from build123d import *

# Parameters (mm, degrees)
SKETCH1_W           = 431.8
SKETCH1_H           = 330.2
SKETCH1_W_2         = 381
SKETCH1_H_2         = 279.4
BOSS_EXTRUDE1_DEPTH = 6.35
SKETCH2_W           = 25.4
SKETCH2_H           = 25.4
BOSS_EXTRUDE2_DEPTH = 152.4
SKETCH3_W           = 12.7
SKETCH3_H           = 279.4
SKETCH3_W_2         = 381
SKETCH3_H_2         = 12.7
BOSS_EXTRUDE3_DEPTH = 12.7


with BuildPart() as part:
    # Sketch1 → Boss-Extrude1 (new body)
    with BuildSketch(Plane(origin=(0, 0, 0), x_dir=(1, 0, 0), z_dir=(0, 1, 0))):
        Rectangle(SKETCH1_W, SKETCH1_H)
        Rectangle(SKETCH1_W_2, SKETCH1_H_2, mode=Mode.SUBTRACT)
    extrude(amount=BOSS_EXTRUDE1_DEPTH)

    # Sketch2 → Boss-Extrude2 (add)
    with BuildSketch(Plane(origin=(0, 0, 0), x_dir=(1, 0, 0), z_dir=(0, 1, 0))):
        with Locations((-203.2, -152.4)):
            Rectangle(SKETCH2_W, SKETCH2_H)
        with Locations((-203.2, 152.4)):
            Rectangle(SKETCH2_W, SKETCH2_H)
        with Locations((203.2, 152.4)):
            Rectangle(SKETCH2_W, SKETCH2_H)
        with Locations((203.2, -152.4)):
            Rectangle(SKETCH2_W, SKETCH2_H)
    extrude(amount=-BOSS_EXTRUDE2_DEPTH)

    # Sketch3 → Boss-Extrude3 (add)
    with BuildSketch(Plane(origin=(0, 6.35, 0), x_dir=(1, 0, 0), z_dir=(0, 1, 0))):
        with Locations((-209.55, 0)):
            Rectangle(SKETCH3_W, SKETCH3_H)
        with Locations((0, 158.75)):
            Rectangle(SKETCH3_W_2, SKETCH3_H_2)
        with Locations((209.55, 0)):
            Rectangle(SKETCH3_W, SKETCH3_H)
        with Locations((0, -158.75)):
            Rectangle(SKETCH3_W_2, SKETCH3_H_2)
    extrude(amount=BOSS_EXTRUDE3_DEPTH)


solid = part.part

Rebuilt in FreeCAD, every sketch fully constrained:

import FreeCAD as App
import Part
import Sketcher

V = App.Vector
Q = App.Units.Quantity

doc = App.newDocument("Part")
params = doc.addObject("Spreadsheet::Sheet", "Params")
for row, (alias, value) in enumerate([
    ("sketch1_width", "17 in"),
    ("sketch1_width2", "15 in"),
    ("sketch1_height", "13 in"),
    ("sketch1_height2", "11 in"),
    ("pad1_length", "0.25 in"),
    ("sketch2_width", "1 in"),
    ("pad2_length", "6 in"),
    ("sketch3_width", "15 in"),
    ("sketch3_height", "11 in"),
    ("sketch3_width2", "0.5 in"),
    ("pad3_length", "0.5 in"),
], start=1):
    params.set(f"A{row}", alias)
    params.set(f"B{row}", "=" + value)
    params.setAlias(f"B{row}", alias)

body = doc.addObject("PartDesign::Body", "Body")

sketch1 = body.newObject("Sketcher::SketchObject", "Sketch")
sketch1.AttachmentSupport = (doc.getObject("XZ_Plane"), [""])
sketch1.MapMode = "FlatFace"
sketch1.addGeometry([
    Part.LineSegment(V(-216, -165, 0), V(-216, 165, 0)),
    Part.LineSegment(V(-216, 165, 0), V(216, 165, 0)),
    Part.LineSegment(V(216, 165, 0), V(216, -165, 0)),
    Part.LineSegment(V(216, -165, 0), V(-216, -165, 0)),
    Part.LineSegment(V(190, 140, 0), V(-190, 140, 0)),
    Part.LineSegment(V(-190, 140, 0), V(-190, -140, 0)),
    Part.LineSegment(V(-190, -140, 0), V(190, -140, 0)),
    Part.LineSegment(V(190, -140, 0), V(190, 140, 0)),
], False)
sketch1.addConstraint([
    Sketcher.Constraint("Coincident", 0, 2, 1, 1),
    Sketcher.Constraint("Coincident", 1, 2, 2, 1),
    Sketcher.Constraint("Coincident", 2, 2, 3, 1),
    Sketcher.Constraint("Coincident", 3, 2, 0, 1),
    Sketcher.Constraint("Coincident", 4, 2, 5, 1),
    Sketcher.Constraint("Coincident", 5, 2, 6, 1),
    Sketcher.Constraint("Coincident", 6, 2, 7, 1),
    Sketcher.Constraint("Coincident", 7, 2, 4, 1),
    Sketcher.Constraint("Vertical", 0),
    Sketcher.Constraint("Horizontal", 1),
    Sketcher.Constraint("Vertical", 2),
    Sketcher.Constraint("Horizontal", 3),
    Sketcher.Constraint("Horizontal", 4),
    Sketcher.Constraint("Vertical", 5),
    Sketcher.Constraint("Horizontal", 6),
    Sketcher.Constraint("Vertical", 7),
    Sketcher.Constraint("Symmetric", 0, 2, 2, 2, -1, 1),
    Sketcher.Constraint("Symmetric", 4, 2, 6, 2, -1, 1),
    Sketcher.Constraint("DistanceX", 1, 1, 1, 2, Q("17 in")),
    Sketcher.Constraint("DistanceX", 4, 2, 4, 1, Q("15 in")),
    Sketcher.Constraint("DistanceY", 0, 1, 0, 2, Q("13 in")),
    Sketcher.Constraint("DistanceY", 5, 2, 5, 1, Q("11 in")),
])
sketch1.setExpression("Constraints[18]", "Params.sketch1_width")
sketch1.setExpression("Constraints[19]", "Params.sketch1_width2")
sketch1.setExpression("Constraints[20]", "Params.sketch1_height")
sketch1.setExpression("Constraints[21]", "Params.sketch1_height2")
pad1 = body.newObject("PartDesign::Pad", "Pad")
pad1.Profile = sketch1
pad1.setExpression("Length", "Params.pad1_length")
pad1.Reversed = True

sketch2 = body.newObject("Sketcher::SketchObject", "Sketch001")
sketch2.AttachmentSupport = (doc.getObject("XZ_Plane"), [""])
sketch2.MapMode = "FlatFace"
sketch2.addGeometry([
    Part.LineSegment(V(-216, 140, 0), V(-216, 165, 0)),
    Part.LineSegment(V(-216, 165, 0), V(-190, 165, 0)),
    Part.LineSegment(V(-190, 165, 0), V(-190, 140, 0)),
    Part.LineSegment(V(-190, 140, 0), V(-216, 140, 0)),
    Part.LineSegment(V(-216, -165, 0), V(-216, -140, 0)),
    Part.LineSegment(V(-216, -140, 0), V(-190, -140, 0)),
    Part.LineSegment(V(-190, -140, 0), V(-190, -165, 0)),
    Part.LineSegment(V(-190, -165, 0), V(-216, -165, 0)),
    Part.LineSegment(V(190, -165, 0), V(190, -140, 0)),
    Part.LineSegment(V(190, -140, 0), V(216, -140, 0)),
    Part.LineSegment(V(216, -140, 0), V(216, -165, 0)),
    Part.LineSegment(V(216, -165, 0), V(190, -165, 0)),
    Part.LineSegment(V(190, 140, 0), V(190, 165, 0)),
    Part.LineSegment(V(190, 165, 0), V(216, 165, 0)),
    Part.LineSegment(V(216, 165, 0), V(216, 140, 0)),
    Part.LineSegment(V(216, 140, 0), V(190, 140, 0)),
], False)
sketch2.addConstraint([
    Sketcher.Constraint("Coincident", 0, 2, 1, 1),
    Sketcher.Constraint("Coincident", 1, 2, 2, 1),
    Sketcher.Constraint("Coincident", 2, 2, 3, 1),
    Sketcher.Constraint("Coincident", 3, 2, 0, 1),
    Sketcher.Constraint("Coincident", 4, 2, 5, 1),
    Sketcher.Constraint("Coincident", 5, 2, 6, 1),
    Sketcher.Constraint("Coincident", 6, 2, 7, 1),
    Sketcher.Constraint("Coincident", 7, 2, 4, 1),
    Sketcher.Constraint("Coincident", 8, 2, 9, 1),
    Sketcher.Constraint("Coincident", 9, 2, 10, 1),
    Sketcher.Constraint("Coincident", 10, 2, 11, 1),
    Sketcher.Constraint("Coincident", 11, 2, 8, 1),
    Sketcher.Constraint("Coincident", 12, 2, 13, 1),
    Sketcher.Constraint("Coincident", 13, 2, 14, 1),
    Sketcher.Constraint("Coincident", 14, 2, 15, 1),
    Sketcher.Constraint("Coincident", 15, 2, 12, 1),
    Sketcher.Constraint("Vertical", 0),
    Sketcher.Constraint("Horizontal", 1),
    Sketcher.Constraint("Vertical", 2),
    Sketcher.Constraint("Horizontal", 3),
    Sketcher.Constraint("Vertical", 4),
    Sketcher.Constraint("Horizontal", 5),
    Sketcher.Constraint("Vertical", 6),
    Sketcher.Constraint("Horizontal", 7),
    Sketcher.Constraint("Vertical", 8),
    Sketcher.Constraint("Horizontal", 9),
    Sketcher.Constraint("Vertical", 10),
    Sketcher.Constraint("Horizontal", 11),
    Sketcher.Constraint("Vertical", 12),
    Sketcher.Constraint("Horizontal", 13),
    Sketcher.Constraint("Vertical", 14),
    Sketcher.Constraint("Horizontal", 15),
    Sketcher.Constraint("Symmetric", 2, 2, 8, 2, -1, 1),
    Sketcher.Constraint("Symmetric", 0, 2, 10, 2, -1, 1),
    Sketcher.Constraint("Symmetric", 6, 2, 12, 2, -1, 1),
    Sketcher.Constraint("Symmetric", 4, 2, 14, 2, -1, 1),
    Sketcher.Constraint("Symmetric", 5, 2, 8, 2, -2),
    Sketcher.Constraint("Symmetric", 7, 2, 10, 2, -2),
    Sketcher.Constraint("Equal", 15, 0),
    Sketcher.Constraint("DistanceX", 1, 1, 1, 2, Q("1 in")),
    Sketcher.Constraint("DistanceY", 4, 2, 3, 2, Q("11 in")),
    Sketcher.Constraint("DistanceX", 5, 2, 8, 2, Q("15 in")),
])
sketch2.setExpression("Constraints[39]", "Params.sketch2_width")
pad2 = body.newObject("PartDesign::Pad", "Pad001")
pad2.Profile = sketch2
pad2.setExpression("Length", "Params.pad2_length")

sketch3 = body.newObject("Sketcher::SketchObject", "Sketch002")
sketch3.AttachmentSupport = (doc.getObject("XZ_Plane"), [""])
sketch3.MapMode = "FlatFace"
sketch3.AttachmentOffset = App.Placement(V(0, 0, -0.25 * 25.4), App.Rotation())
sketch3.addGeometry([
    Part.LineSegment(V(-216, -140, 0), V(-216, 140, 0)),
    Part.LineSegment(V(-216, 140, 0), V(-203, 140, 0)),
    Part.LineSegment(V(-203, 140, 0), V(-203, -140, 0)),
    Part.LineSegment(V(-203, -140, 0), V(-216, -140, 0)),
    Part.LineSegment(V(-190, -165, 0), V(-190, -152, 0)),
    Part.LineSegment(V(-190, -152, 0), V(190, -152, 0)),
    Part.LineSegment(V(190, -152, 0), V(190, -165, 0)),
    Part.LineSegment(V(190, -165, 0), V(-190, -165, 0)),
    Part.LineSegment(V(203, -140, 0), V(203, 140, 0)),
    Part.LineSegment(V(203, 140, 0), V(216, 140, 0)),
    Part.LineSegment(V(216, 140, 0), V(216, -140, 0)),
    Part.LineSegment(V(216, -140, 0), V(203, -140, 0)),
    Part.LineSegment(V(-190, 152, 0), V(-190, 165, 0)),
    Part.LineSegment(V(-190, 165, 0), V(190, 165, 0)),
    Part.LineSegment(V(190, 165, 0), V(190, 152, 0)),
    Part.LineSegment(V(190, 152, 0), V(-190, 152, 0)),
], False)
sketch3.addConstraint([
    Sketcher.Constraint("Coincident", 0, 2, 1, 1),
    Sketcher.Constraint("Coincident", 1, 2, 2, 1),
    Sketcher.Constraint("Coincident", 2, 2, 3, 1),
    Sketcher.Constraint("Coincident", 3, 2, 0, 1),
    Sketcher.Constraint("Coincident", 4, 2, 5, 1),
    Sketcher.Constraint("Coincident", 5, 2, 6, 1),
    Sketcher.Constraint("Coincident", 6, 2, 7, 1),
    Sketcher.Constraint("Coincident", 7, 2, 4, 1),
    Sketcher.Constraint("Coincident", 8, 2, 9, 1),
    Sketcher.Constraint("Coincident", 9, 2, 10, 1),
    Sketcher.Constraint("Coincident", 10, 2, 11, 1),
    Sketcher.Constraint("Coincident", 11, 2, 8, 1),
    Sketcher.Constraint("Coincident", 12, 2, 13, 1),
    Sketcher.Constraint("Coincident", 13, 2, 14, 1),
    Sketcher.Constraint("Coincident", 14, 2, 15, 1),
    Sketcher.Constraint("Coincident", 15, 2, 12, 1),
    Sketcher.Constraint("Vertical", 0),
    Sketcher.Constraint("Horizontal", 1),
    Sketcher.Constraint("Vertical", 2),
    Sketcher.Constraint("Horizontal", 3),
    Sketcher.Constraint("Vertical", 4),
    Sketcher.Constraint("Horizontal", 5),
    Sketcher.Constraint("Vertical", 6),
    Sketcher.Constraint("Horizontal", 7),
    Sketcher.Constraint("Vertical", 8),
    Sketcher.Constraint("Horizontal", 9),
    Sketcher.Constraint("Vertical", 10),
    Sketcher.Constraint("Horizontal", 11),
    Sketcher.Constraint("Vertical", 12),
    Sketcher.Constraint("Horizontal", 13),
    Sketcher.Constraint("Vertical", 14),
    Sketcher.Constraint("Horizontal", 15),
    Sketcher.Constraint("Symmetric", 2, 2, 8, 2, -1, 1),
    Sketcher.Constraint("Symmetric", 0, 2, 10, 2, -1, 1),
    Sketcher.Constraint("Symmetric", 6, 2, 12, 2, -1, 1),
    Sketcher.Constraint("Symmetric", 4, 2, 14, 2, -1, 1),
    Sketcher.Constraint("Horizontal", 1, 2, 8, 2),
    Sketcher.Constraint("Vertical", 7, 2, 12, 2),
    Sketcher.Constraint("Equal", 11, 4),
    Sketcher.Constraint("DistanceX", 5, 1, 5, 2, Q("15 in")),
    Sketcher.Constraint("DistanceY", 0, 1, 0, 2, Q("11 in")),
    Sketcher.Constraint("DistanceX", 1, 1, 1, 2, Q("0.5 in")),
    Sketcher.Constraint("DistanceX", 1, 2, -1, 1, Q("8 in")),
    Sketcher.Constraint("DistanceY", 4, 2, -1, 1, Q("6 in")),
])
sketch3.setExpression("Constraints[39]", "Params.sketch3_width")
sketch3.setExpression("Constraints[40]", "Params.sketch3_height")
sketch3.setExpression("Constraints[41]", "Params.sketch3_width2")
pad3 = body.newObject("PartDesign::Pad", "Pad002")
pad3.Profile = sketch3
pad3.setExpression("Length", "Params.pad3_length")
pad3.Reversed = True

doc.recompute()
